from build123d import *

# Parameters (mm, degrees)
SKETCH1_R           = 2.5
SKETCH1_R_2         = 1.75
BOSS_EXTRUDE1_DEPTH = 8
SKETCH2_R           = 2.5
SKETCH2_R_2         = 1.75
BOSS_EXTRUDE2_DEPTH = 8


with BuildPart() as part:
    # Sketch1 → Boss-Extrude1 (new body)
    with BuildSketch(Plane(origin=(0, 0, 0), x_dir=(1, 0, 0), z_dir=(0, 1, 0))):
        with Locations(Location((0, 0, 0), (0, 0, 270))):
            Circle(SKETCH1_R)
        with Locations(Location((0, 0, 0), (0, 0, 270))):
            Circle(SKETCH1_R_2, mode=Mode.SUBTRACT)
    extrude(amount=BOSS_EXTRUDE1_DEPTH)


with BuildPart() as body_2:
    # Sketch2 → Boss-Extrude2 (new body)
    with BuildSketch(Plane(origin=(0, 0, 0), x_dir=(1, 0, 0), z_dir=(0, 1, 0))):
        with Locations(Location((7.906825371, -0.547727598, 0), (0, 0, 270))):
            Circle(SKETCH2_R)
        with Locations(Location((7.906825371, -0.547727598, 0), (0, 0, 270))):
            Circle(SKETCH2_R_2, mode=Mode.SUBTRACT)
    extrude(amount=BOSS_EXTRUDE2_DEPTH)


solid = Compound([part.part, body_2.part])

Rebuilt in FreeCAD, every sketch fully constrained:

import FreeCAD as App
import Part
import Sketcher

V = App.Vector

doc = App.newDocument("Part")
body = doc.addObject("PartDesign::Body", "Body")

# Sketch on XZ plane
sketch1 = body.newObject("Sketcher::SketchObject", "Sketch")
sketch1.AttachmentSupport = (doc.getObject("XZ_Plane"), [""])
sketch1.MapMode = "FlatFace"
sketch1.addGeometry([
    Part.Circle(V(0, 0, 0), V(0, 0, 1), 2.5),
    Part.Circle(V(0, 0, 0), V(0, 0, 1), 1.8),
], False)
sketch1.addConstraint([
    Sketcher.Constraint("Coincident", 0, 3, -1, 1),
    Sketcher.Constraint("Coincident", 1, 3, -1, 1),
    Sketcher.Constraint("Diameter", 0, 5.0),
    Sketcher.Constraint("Diameter", 1, 3.5),
])
pad1 = body.newObject("PartDesign::Pad", "Pad")
pad1.Profile = sketch1
pad1.Length = 8
pad1.Reversed = True
body2 = doc.addObject("PartDesign::Body", "Body001")

# Sketch on XZ plane
sketch2 = body2.newObject("Sketcher::SketchObject", "Sketch001")
sketch2.AttachmentSupport = (doc.getObject("XZ_Plane001"), [""])
sketch2.MapMode = "FlatFace"
sketch2.addGeometry([
    Part.Circle(V(7.9, 0.5, 0), V(0, 0, 1), 2.5),
    Part.Circle(V(7.9, 0.5, 0), V(0, 0, 1), 1.8),
], False)
sketch2.addConstraint([
    Sketcher.Constraint("Coincident", 1, 3, 0, 3),
    Sketcher.Constraint("Diameter", 0, 5.0),
    Sketcher.Constraint("Diameter", 1, 3.5),
    Sketcher.Constraint("DistanceX", -1, 1, 0, 3, 7.906825),
    Sketcher.Constraint("DistanceY", -1, 1, 0, 3, 0.547728),
])
pad2 = body2.newObject("PartDesign::Pad", "Pad001")
pad2.Profile = sketch2
pad2.Length = 8
pad2.Reversed = True

doc.recompute()
